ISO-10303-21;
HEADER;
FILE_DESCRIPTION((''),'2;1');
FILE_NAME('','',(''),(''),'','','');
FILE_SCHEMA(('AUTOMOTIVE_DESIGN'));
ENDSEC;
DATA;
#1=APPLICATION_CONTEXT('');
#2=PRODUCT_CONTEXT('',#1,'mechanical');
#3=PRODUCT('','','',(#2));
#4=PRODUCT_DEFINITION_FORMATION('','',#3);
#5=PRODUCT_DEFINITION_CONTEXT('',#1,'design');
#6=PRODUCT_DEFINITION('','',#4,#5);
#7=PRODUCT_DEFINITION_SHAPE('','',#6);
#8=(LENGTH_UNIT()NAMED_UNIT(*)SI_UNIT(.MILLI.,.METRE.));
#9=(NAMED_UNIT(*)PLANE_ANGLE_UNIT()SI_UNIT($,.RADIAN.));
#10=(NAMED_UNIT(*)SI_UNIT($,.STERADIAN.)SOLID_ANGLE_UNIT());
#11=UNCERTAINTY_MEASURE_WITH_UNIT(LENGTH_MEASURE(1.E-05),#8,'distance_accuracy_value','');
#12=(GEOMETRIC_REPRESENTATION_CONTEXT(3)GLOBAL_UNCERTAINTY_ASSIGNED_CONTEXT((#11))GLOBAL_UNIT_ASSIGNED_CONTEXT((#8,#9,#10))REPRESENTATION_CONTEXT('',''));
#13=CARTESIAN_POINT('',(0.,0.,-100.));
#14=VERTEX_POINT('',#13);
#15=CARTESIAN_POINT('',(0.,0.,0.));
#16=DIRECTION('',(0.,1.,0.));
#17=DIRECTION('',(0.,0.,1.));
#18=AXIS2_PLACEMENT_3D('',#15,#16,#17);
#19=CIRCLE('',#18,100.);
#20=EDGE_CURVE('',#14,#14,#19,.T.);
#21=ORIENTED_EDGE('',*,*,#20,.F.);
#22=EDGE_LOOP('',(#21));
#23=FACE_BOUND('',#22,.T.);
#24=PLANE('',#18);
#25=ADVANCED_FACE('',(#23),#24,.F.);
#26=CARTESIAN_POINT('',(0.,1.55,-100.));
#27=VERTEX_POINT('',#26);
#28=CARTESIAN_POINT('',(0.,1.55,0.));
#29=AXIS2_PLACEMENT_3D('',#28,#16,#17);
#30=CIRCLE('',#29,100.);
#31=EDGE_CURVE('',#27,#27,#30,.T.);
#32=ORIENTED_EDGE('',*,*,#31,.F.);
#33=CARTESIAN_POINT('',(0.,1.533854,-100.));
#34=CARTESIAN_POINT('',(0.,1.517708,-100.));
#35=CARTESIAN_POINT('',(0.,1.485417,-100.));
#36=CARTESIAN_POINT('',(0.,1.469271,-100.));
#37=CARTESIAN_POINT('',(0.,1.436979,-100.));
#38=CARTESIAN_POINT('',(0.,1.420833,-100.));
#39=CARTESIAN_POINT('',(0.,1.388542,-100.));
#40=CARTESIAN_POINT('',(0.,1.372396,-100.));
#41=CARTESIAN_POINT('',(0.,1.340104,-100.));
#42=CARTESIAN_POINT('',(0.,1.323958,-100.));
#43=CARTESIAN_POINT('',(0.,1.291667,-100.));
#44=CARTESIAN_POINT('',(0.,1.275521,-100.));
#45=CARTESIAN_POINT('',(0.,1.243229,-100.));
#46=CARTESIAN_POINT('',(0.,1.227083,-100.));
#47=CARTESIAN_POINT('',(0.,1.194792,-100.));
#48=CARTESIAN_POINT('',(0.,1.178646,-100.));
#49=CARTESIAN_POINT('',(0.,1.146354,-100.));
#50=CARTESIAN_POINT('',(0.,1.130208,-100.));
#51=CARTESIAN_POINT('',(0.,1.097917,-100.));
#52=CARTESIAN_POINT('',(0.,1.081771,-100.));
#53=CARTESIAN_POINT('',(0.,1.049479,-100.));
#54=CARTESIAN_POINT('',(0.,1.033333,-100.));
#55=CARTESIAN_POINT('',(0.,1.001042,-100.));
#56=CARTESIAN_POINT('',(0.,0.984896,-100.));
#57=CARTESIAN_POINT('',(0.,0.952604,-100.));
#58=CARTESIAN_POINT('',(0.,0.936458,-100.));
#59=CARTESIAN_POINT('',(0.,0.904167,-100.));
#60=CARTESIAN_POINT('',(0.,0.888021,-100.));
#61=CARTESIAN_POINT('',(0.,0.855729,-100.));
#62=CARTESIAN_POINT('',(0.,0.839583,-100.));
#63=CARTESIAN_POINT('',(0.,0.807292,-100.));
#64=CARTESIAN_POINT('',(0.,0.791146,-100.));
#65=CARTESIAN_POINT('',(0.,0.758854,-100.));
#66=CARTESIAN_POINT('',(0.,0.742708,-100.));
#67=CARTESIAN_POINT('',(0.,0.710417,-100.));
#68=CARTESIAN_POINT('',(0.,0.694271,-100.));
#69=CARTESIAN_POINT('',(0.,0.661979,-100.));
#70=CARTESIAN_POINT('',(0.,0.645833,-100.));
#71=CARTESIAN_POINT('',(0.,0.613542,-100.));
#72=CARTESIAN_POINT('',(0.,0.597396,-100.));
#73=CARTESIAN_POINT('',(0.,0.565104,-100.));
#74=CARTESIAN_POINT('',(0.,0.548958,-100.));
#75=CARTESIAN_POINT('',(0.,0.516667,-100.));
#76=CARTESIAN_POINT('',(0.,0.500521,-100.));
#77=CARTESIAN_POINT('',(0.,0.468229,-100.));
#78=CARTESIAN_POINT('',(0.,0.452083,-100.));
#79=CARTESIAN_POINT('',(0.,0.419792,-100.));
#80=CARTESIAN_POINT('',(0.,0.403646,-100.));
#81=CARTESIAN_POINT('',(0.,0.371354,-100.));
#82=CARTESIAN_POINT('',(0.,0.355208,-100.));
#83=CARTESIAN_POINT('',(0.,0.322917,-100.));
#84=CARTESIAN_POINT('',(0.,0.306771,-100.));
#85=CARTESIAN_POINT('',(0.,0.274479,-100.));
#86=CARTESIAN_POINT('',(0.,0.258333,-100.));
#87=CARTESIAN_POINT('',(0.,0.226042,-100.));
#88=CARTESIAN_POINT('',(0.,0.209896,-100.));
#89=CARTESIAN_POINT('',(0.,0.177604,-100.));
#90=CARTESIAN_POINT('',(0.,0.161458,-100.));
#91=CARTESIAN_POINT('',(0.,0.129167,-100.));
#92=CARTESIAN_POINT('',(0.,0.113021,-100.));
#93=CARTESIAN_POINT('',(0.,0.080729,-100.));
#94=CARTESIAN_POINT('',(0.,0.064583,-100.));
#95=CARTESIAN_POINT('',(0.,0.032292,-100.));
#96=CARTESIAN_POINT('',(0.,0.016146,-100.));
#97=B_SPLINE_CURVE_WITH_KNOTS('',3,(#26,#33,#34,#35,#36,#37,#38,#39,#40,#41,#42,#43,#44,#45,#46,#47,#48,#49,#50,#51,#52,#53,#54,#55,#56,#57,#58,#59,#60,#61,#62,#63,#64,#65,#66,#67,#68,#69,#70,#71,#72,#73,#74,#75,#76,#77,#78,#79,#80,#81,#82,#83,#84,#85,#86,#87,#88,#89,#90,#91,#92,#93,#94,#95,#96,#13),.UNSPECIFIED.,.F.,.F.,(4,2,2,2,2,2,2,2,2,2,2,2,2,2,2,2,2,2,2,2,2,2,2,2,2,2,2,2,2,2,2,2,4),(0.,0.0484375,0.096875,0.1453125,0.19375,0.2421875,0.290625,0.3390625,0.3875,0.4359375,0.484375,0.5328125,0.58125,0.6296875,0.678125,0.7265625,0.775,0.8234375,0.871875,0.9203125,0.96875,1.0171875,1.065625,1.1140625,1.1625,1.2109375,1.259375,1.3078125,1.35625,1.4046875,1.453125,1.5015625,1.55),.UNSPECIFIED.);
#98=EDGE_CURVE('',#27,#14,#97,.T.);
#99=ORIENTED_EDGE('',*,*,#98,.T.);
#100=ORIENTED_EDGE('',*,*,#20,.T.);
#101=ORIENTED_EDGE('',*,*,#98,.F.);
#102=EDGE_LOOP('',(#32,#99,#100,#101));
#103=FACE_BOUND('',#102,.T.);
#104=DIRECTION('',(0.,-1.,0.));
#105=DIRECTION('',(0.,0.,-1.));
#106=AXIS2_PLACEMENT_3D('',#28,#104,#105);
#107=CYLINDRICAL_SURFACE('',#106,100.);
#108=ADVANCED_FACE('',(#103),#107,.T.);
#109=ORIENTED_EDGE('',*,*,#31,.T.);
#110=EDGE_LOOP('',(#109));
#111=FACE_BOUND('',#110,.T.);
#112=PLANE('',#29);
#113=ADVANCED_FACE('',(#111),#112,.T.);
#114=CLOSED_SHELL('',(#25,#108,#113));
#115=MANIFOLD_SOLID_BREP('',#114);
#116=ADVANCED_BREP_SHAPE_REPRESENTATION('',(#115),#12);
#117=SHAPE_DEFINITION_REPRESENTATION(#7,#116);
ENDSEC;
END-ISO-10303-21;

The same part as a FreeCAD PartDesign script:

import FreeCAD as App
import Part
import Sketcher

V = App.Vector

doc = App.newDocument("Part")
body = doc.addObject("PartDesign::Body", "Body")

# Sketch on XZ plane
sketch1 = body.newObject("Sketcher::SketchObject", "Sketch")
sketch1.AttachmentSupport = (doc.getObject("XZ_Plane"), [""])
sketch1.MapMode = "FlatFace"
sketch1.addGeometry(Part.Circle(V(0, 0, 0), V(0, 0, 1), 100), False)
sketch1.addConstraint([
    Sketcher.Constraint("Coincident", 0, 3, -1, 1),
    Sketcher.Constraint("Diameter", 0, 200.0),
])
pad1 = body.newObject("PartDesign::Pad", "Pad")
pad1.Profile = sketch1
pad1.Length = 1.55
pad1.Reversed = True

doc.recompute()
